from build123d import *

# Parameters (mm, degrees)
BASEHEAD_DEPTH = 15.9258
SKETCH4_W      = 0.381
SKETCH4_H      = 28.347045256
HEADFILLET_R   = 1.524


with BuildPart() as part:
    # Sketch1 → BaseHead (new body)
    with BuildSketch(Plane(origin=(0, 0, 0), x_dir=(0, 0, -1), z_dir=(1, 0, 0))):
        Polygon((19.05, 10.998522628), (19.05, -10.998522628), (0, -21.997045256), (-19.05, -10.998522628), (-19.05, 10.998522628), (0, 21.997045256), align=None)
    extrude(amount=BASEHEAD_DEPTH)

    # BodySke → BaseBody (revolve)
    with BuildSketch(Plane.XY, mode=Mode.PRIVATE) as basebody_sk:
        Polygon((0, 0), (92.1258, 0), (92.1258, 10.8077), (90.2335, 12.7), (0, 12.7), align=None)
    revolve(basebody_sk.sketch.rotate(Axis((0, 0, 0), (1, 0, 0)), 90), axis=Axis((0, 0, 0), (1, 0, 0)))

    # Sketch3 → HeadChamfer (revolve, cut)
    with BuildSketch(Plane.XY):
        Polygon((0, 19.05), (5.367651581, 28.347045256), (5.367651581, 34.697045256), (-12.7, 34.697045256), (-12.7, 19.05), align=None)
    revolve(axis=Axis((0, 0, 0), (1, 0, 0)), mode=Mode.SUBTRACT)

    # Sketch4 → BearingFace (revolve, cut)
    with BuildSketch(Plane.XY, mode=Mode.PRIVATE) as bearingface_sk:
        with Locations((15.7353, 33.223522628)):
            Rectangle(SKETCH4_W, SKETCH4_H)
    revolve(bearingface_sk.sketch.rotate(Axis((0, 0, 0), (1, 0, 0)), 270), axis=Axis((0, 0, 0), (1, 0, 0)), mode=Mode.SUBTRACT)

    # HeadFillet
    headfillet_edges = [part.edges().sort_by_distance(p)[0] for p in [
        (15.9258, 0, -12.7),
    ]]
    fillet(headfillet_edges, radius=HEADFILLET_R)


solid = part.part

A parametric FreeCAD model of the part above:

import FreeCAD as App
import Part
import Sketcher
from FreeCAD import Vector
Q = App.Units.Quantity


def edges_at(feature, points):
    """Names of the edges that pass closest to the given points."""
    edges = feature.Shape.Edges
    near = lambda p: min(range(len(edges)), key=lambda i: edges[i].distToShape(Part.Vertex(*p))[0])
    return sorted({f"Edge{near(p) + 1}" for p in points})


def add_polygon(sketch, points):
    """Adds a closed chain of lines whose ends are joined by coincident constraints."""
    first, n = sketch.GeometryCount, len(points)
    for a, b in zip(points, points[1:] + points[:1]):
        sketch.addGeometry(Part.LineSegment(App.Vector(*a, 0), App.Vector(*b, 0)), False)
    for i in range(n):
        sketch.addConstraint(Sketcher.Constraint("Coincident", first + i, 2, first + (i + 1) % n, 1))

doc = App.newDocument("Part")
body = doc.addObject("PartDesign::Body", "Body")

sketch1 = doc.addObject("Sketcher::SketchObject", "Sketch")
body.addObject(sketch1)
sketch1.AttachmentSupport = (doc.YZ_Plane, [""])
sketch1.MapMode = "FlatFace"
add_polygon(sketch1, [(-11, -19), (11, -19), (22, 0), (11, 19), (-11, 19), (-22, 0)])
sketch1.addConstraint([
    Sketcher.Constraint("Horizontal", 0),
    Sketcher.Constraint("Horizontal", 3),
    Sketcher.Constraint("Symmetric", 0, 2, 3, 2, -1, 1),
    Sketcher.Constraint("Symmetric", 1, 2, 4, 2, -1, 1),
    Sketcher.Constraint("PointOnObject", 1, 2, -1),
    Sketcher.Constraint("Parallel", 2, 5),
    Sketcher.Constraint("Vertical", 0, 2, 2, 2),
    Sketcher.Constraint("Angle", 1, Q("60 deg")),
    Sketcher.Constraint("DistanceY", 0, 2, 2, 2, Q("1.5 in")),
    Sketcher.Constraint("DistanceX", 0, 1, 0, 2, 21.997045),
])
pad1 = doc.addObject("PartDesign::Pad", "Pad")
body.addObject(pad1)
pad1.Profile = sketch1
pad1.Length = Q("0.627 in")

sketch2 = doc.addObject("Sketcher::SketchObject", "Sketch001")
body.addObject(sketch2)
sketch2.AttachmentSupport = (doc.XY_Plane, [""])
sketch2.MapMode = "FlatFace"
add_polygon(sketch2, [(0, 0), (92.1, 0), (92.1, 10.8), (90.2, 12.7), (0, 12.7)])
sketch2.addConstraint([
    Sketcher.Constraint("Horizontal", 0),
    Sketcher.Constraint("Vertical", 1),
    Sketcher.Constraint("Horizontal", 3),
    Sketcher.Constraint("Vertical", 4),
    Sketcher.Constraint("Coincident", 4, 2, -1, 1),
    Sketcher.Constraint("DistanceY", 4, 2, 4, 1, Q("0.5 in")),
    Sketcher.Constraint("Angle", 2, Q("135 deg")),
    Sketcher.Constraint("DistanceX", 0, 1, 0, 2, Q("3.627 in")),
    Sketcher.Constraint("DistanceX", 3, 2, 3, 1, Q("3.5525 in")),
])
revolution = doc.addObject("PartDesign::Revolution", "Revolution")
body.addObject(revolution)
revolution.Profile = sketch2
revolution.ReferenceAxis = (sketch2, ["H_Axis"])
revolution.Angle = 360

sketch3 = doc.addObject("Sketcher::SketchObject", "Sketch002")
body.addObject(sketch3)
sketch3.AttachmentSupport = (doc.XY_Plane, [""])
sketch3.MapMode = "FlatFace"
add_polygon(sketch3, [(0, 19), (5, 28), (5, 35), (-13, 35), (-13, 19)])
sketch3.addConstraint([
    Sketcher.Constraint("Vertical", 1),
    Sketcher.Constraint("Horizontal", 2),
    Sketcher.Constraint("Vertical", 3),
    Sketcher.Constraint("Horizontal", 4),
    Sketcher.Constraint("PointOnObject", 4, 2, -2),
    Sketcher.Constraint("DistanceX", 4, 1, 4, 2, Q("0.5 in")),
    Sketcher.Constraint("Angle", 0, Q("60 deg")),
    Sketcher.Constraint("DistanceY", 1, 1, 1, 2, Q("0.25 in")),
    Sketcher.Constraint("DistanceY", -1, 1, 3, 2, Q("0.75 in")),
    Sketcher.Constraint("DistanceX", 2, 2, 2, 1, 18.067652),
])
groove = doc.addObject("PartDesign::Groove", "Groove")
body.addObject(groove)
groove.Profile = sketch3
groove.ReferenceAxis = (sketch3, ["H_Axis"])
groove.Angle = 360

sketch4 = doc.addObject("Sketcher::SketchObject", "Sketch003")
body.addObject(sketch4)
sketch4.AttachmentSupport = (doc.XY_Plane, [""])
sketch4.MapMode = "FlatFace"
add_polygon(sketch4, [(15.54, 47.4), (15.54, 19.05), (15.93, 19.05), (15.93, 47.4)])
sketch4.addConstraint([
    Sketcher.Constraint("Vertical", 0),
    Sketcher.Constraint("Horizontal", 1),
    Sketcher.Constraint("Vertical", 2),
    Sketcher.Constraint("Horizontal", 3),
    Sketcher.Constraint("DistanceX", 1, 1, 1, 2, Q("0.015 in")),
    Sketcher.Constraint("DistanceY", -1, 1, 0, 2, Q("0.75 in")),
    Sketcher.Constraint("DistanceX", -1, 1, 0, 2, Q("0.612 in")),
    Sketcher.Constraint("DistanceY", 0, 2, 0, 1, 28.347045),
])
groove2 = doc.addObject("PartDesign::Groove", "Groove001")
body.addObject(groove2)
groove2.Profile = sketch4
groove2.ReferenceAxis = (sketch4, ["H_Axis"])
groove2.Angle = 360
doc.recompute()

fillet = doc.addObject("PartDesign::Fillet", "Fillet")
body.addObject(fillet)
fillet.Base = (groove2, edges_at(groove2, [(15.926, 0, -12.7)]))
fillet.Radius = Q("0.06 in")

doc.recompute()
